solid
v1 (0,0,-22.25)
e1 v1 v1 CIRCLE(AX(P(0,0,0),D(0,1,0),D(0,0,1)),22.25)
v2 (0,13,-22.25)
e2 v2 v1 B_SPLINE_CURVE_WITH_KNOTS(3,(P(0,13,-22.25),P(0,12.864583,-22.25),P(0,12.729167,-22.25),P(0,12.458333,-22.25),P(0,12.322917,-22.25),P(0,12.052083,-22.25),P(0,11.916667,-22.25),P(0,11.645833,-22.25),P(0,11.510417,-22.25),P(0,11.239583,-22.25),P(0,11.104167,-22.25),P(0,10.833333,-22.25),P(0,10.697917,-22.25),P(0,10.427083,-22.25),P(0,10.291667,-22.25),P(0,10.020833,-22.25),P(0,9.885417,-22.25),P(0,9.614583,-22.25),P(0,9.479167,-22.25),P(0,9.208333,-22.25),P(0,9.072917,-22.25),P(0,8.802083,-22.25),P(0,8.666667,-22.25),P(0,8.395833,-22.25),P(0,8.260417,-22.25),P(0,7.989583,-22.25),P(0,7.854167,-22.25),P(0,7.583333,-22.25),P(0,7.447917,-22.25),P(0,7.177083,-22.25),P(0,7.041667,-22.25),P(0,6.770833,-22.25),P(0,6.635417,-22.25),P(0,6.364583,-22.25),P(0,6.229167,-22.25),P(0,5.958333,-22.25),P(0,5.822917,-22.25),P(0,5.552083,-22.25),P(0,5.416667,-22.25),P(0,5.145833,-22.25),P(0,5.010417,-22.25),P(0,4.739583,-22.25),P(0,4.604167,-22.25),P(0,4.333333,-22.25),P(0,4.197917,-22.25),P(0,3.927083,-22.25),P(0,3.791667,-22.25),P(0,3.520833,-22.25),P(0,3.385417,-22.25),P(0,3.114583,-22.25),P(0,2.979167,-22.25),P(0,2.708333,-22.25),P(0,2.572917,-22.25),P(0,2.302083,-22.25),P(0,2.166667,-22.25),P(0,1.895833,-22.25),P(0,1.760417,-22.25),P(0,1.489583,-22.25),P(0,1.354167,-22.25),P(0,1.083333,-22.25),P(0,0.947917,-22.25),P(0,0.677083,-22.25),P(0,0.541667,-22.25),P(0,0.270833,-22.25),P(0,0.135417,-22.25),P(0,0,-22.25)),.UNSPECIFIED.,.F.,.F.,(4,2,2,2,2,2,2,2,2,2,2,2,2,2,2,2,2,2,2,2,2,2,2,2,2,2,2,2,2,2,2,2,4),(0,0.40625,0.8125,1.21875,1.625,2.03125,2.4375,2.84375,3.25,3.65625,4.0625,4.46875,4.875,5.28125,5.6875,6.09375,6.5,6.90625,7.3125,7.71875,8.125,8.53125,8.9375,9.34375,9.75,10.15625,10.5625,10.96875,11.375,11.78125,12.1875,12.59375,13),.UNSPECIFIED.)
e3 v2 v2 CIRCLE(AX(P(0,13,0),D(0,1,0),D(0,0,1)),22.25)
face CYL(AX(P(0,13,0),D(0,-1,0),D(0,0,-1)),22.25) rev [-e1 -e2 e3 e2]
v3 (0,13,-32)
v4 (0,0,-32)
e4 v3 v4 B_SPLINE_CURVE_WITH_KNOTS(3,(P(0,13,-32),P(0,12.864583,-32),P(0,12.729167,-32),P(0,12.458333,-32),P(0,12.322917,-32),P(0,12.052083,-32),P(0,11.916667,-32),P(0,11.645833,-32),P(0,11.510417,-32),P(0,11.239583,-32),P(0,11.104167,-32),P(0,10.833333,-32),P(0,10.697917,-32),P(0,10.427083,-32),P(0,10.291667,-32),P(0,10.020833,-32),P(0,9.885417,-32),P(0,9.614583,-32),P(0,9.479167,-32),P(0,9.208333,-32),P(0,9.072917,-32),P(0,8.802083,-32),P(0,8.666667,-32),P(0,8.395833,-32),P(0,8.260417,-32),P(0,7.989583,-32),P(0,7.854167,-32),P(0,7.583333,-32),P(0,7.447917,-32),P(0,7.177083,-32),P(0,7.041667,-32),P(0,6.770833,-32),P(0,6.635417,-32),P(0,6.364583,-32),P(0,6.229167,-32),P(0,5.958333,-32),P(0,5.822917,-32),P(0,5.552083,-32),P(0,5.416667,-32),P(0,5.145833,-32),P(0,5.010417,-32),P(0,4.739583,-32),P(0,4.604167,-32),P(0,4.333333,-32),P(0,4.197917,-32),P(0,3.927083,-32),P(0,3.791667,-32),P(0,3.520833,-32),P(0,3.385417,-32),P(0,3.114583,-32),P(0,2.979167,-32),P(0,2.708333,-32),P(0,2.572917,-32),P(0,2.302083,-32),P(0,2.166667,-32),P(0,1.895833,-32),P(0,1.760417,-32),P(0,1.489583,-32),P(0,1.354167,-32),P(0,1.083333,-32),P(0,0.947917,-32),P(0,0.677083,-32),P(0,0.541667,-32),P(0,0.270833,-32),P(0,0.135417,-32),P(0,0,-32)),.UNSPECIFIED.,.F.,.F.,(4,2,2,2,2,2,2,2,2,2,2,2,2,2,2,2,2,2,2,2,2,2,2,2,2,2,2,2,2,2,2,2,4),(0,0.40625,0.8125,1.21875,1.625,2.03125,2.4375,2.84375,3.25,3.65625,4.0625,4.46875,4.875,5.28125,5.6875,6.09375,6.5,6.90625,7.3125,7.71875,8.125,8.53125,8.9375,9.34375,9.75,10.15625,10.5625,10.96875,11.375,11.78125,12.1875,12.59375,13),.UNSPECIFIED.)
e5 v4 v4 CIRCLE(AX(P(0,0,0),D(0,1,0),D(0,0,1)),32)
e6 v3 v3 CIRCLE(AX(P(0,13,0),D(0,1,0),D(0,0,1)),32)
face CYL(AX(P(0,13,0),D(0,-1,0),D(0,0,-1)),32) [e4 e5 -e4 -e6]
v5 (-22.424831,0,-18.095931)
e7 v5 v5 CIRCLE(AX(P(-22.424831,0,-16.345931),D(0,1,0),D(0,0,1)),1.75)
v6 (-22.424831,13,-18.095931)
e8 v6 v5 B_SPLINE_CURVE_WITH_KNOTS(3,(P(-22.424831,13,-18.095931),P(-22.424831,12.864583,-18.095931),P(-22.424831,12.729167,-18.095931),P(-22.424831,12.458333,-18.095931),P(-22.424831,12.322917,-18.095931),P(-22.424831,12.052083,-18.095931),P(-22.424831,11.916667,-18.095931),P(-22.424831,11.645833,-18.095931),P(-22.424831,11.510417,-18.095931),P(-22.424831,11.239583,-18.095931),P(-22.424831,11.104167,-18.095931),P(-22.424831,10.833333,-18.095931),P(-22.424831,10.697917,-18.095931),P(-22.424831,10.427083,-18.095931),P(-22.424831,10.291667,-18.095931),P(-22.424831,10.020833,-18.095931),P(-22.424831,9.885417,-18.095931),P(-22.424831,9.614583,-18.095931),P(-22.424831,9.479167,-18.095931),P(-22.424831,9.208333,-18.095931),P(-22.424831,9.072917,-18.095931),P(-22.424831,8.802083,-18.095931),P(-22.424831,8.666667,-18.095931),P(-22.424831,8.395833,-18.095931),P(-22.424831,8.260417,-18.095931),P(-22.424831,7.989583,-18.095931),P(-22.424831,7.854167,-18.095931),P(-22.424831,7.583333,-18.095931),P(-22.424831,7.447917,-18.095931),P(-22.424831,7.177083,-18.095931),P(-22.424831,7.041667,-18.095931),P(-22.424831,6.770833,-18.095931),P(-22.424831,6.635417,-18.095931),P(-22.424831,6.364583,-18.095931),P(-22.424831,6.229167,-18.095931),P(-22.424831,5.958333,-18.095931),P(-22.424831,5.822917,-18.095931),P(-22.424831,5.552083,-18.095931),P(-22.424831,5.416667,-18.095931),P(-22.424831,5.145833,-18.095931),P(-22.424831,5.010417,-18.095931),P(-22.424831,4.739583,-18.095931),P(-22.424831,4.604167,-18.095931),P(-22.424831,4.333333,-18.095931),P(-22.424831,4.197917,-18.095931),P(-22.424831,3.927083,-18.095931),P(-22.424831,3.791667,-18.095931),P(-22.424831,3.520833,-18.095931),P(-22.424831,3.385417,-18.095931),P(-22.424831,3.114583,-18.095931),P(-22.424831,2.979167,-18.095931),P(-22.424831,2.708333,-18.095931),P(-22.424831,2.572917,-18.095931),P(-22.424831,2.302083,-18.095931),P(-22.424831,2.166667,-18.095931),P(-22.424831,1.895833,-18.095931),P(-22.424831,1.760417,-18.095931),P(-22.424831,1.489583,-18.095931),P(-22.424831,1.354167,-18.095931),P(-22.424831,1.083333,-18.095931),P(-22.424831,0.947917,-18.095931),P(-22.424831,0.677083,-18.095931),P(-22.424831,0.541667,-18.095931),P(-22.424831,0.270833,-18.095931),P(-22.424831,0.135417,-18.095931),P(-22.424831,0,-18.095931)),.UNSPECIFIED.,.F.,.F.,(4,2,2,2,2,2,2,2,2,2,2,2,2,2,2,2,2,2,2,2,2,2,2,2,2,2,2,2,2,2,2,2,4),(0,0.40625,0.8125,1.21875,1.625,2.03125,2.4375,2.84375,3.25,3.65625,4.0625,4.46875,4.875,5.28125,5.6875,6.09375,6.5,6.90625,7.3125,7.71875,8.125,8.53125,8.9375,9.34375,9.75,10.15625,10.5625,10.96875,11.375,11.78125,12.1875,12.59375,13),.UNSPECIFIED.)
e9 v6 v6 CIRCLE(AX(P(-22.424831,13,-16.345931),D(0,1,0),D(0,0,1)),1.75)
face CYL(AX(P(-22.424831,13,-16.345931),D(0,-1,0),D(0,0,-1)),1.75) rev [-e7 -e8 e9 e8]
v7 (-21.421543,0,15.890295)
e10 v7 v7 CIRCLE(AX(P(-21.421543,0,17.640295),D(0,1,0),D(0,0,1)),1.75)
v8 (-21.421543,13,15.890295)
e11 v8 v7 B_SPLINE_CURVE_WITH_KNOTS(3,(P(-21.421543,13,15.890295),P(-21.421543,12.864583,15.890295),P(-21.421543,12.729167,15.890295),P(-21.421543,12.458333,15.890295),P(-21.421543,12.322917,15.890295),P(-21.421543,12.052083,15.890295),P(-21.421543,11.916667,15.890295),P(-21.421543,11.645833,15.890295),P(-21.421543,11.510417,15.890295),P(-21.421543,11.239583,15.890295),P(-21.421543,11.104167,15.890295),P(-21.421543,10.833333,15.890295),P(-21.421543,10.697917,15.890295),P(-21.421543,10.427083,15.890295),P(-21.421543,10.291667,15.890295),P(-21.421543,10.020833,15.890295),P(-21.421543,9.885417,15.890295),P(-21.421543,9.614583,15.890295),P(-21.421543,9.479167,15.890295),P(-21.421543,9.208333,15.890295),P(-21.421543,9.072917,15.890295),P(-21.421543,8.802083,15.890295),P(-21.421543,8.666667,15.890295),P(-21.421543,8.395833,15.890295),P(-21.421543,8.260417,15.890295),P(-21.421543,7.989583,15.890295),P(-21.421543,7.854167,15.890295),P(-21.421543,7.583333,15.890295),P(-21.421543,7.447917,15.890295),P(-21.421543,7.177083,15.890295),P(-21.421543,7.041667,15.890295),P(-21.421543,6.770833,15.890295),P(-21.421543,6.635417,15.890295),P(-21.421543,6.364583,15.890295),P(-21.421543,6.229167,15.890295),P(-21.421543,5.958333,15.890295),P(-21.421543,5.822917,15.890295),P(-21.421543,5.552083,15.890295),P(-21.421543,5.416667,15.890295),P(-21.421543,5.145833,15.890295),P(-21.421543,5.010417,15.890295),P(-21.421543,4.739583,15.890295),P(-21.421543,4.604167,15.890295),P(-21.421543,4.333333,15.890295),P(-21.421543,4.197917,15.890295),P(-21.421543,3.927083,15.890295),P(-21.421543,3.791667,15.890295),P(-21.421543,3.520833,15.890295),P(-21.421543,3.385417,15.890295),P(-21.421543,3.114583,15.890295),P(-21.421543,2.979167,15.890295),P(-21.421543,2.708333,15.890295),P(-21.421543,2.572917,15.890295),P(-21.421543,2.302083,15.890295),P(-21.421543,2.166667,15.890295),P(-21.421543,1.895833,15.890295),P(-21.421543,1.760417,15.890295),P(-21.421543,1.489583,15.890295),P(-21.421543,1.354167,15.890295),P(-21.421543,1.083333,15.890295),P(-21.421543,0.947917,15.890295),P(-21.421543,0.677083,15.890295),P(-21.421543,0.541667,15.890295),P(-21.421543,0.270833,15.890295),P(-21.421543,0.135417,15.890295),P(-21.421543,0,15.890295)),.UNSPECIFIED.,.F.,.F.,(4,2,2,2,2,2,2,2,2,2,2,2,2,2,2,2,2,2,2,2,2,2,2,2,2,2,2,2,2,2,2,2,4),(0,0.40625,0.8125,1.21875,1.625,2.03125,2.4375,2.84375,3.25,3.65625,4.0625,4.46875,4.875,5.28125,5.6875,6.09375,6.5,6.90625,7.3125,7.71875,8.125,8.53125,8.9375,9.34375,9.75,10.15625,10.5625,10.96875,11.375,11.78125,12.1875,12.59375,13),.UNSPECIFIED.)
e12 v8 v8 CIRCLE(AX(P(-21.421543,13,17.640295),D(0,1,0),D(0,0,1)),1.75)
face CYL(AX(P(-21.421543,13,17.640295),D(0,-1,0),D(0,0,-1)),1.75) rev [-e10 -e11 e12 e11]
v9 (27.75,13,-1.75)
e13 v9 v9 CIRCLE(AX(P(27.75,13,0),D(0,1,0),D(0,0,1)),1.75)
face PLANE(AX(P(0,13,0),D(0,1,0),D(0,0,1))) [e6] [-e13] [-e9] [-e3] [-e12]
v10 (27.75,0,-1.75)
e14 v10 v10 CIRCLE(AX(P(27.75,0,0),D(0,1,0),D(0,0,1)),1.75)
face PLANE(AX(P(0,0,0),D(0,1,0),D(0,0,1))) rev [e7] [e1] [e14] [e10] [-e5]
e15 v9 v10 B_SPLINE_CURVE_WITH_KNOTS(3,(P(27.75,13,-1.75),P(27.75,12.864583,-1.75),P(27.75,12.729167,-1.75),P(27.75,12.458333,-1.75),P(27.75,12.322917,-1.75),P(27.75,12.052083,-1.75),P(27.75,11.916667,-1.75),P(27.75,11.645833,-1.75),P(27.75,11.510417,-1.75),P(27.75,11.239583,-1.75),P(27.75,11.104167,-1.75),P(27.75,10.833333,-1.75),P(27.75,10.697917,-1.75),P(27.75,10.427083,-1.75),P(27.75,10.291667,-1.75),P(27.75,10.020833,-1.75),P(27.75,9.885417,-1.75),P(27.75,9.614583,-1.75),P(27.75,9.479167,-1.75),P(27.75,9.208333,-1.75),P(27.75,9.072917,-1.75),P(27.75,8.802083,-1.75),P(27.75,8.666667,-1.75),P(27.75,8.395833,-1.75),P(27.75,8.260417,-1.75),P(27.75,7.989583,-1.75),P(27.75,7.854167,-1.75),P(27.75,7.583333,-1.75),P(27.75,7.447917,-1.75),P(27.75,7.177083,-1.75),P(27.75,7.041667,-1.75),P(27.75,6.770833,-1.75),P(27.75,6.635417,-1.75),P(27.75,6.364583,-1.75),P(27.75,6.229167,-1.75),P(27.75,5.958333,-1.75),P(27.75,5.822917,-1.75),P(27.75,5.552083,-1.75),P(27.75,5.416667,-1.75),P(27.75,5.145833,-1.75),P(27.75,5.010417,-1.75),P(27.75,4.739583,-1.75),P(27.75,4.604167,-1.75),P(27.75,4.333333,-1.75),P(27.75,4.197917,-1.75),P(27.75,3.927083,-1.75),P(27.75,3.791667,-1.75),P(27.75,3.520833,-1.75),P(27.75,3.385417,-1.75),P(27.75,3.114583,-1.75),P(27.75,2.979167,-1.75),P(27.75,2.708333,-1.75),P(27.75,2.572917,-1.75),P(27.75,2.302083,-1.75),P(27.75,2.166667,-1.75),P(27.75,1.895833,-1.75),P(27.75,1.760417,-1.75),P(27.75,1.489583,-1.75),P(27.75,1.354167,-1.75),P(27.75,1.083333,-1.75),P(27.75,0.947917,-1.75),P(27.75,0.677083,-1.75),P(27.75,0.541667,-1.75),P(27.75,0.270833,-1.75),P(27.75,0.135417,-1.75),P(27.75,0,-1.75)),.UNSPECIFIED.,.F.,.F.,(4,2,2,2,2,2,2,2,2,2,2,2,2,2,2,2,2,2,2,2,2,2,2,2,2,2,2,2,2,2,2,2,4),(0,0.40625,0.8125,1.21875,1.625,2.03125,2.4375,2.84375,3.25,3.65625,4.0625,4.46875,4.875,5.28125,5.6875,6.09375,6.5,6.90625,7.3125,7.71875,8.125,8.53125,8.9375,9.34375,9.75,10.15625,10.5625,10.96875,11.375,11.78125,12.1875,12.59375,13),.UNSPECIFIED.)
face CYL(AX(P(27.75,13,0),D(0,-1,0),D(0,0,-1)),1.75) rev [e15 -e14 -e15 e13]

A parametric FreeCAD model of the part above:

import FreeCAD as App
import Part
import Sketcher
from FreeCAD import Vector

doc = App.newDocument("Part")
body = doc.addObject("PartDesign::Body", "Body")

sketch1 = body.newObject("Sketcher::SketchObject", "Sketch")
sketch1.AttachmentSupport = (doc.getObject("XZ_Plane"), [""])
sketch1.MapMode = "FlatFace"
sketch1.addGeometry([
    Part.Circle(Vector(0, 0, 0), Vector(0, 0, 1), 32),
    Part.Circle(Vector(27.8, 0, 0), Vector(0, 0, 1), 1.8),
    Part.Circle(Vector(-21.4, 17.6, 0), Vector(0, 0, 1), 1.8),
    Part.Circle(Vector(0, 0, 0), Vector(0, 0, 1), 22.2),
    Part.Circle(Vector(-22.4, -16.3, 0), Vector(0, 0, 1), 1.8),
], False)
sketch1.addConstraint([
    Sketcher.Constraint("Coincident", 0, 3, -1, 1),
    Sketcher.Constraint("Coincident", 3, 3, -1, 1),
    Sketcher.Constraint("Equal", 1, 2),
    Sketcher.Constraint("Equal", 2, 4),
    Sketcher.Constraint("PointOnObject", 1, 3, -1),
    Sketcher.Constraint("Diameter", 0, 64.0),
    Sketcher.Constraint("Diameter", 1, 3.5),
    Sketcher.Constraint("Diameter", 3, 44.5),
    Sketcher.Constraint("DistanceX", -1, 1, 1, 3, 27.75),
    Sketcher.Constraint("DistanceX", 4, 3, -1, 1, 22.424831),
    Sketcher.Constraint("DistanceY", 4, 3, -1, 1, 16.345931),
    Sketcher.Constraint("DistanceX", 4, 3, 2, 3, 1.003288),
    Sketcher.Constraint("DistanceY", -1, 1, 2, 3, 17.640295),
])
pad1 = body.newObject("PartDesign::Pad", "Pad")
pad1.Profile = sketch1
pad1.Length = 13
pad1.Reversed = True

doc.recompute()
